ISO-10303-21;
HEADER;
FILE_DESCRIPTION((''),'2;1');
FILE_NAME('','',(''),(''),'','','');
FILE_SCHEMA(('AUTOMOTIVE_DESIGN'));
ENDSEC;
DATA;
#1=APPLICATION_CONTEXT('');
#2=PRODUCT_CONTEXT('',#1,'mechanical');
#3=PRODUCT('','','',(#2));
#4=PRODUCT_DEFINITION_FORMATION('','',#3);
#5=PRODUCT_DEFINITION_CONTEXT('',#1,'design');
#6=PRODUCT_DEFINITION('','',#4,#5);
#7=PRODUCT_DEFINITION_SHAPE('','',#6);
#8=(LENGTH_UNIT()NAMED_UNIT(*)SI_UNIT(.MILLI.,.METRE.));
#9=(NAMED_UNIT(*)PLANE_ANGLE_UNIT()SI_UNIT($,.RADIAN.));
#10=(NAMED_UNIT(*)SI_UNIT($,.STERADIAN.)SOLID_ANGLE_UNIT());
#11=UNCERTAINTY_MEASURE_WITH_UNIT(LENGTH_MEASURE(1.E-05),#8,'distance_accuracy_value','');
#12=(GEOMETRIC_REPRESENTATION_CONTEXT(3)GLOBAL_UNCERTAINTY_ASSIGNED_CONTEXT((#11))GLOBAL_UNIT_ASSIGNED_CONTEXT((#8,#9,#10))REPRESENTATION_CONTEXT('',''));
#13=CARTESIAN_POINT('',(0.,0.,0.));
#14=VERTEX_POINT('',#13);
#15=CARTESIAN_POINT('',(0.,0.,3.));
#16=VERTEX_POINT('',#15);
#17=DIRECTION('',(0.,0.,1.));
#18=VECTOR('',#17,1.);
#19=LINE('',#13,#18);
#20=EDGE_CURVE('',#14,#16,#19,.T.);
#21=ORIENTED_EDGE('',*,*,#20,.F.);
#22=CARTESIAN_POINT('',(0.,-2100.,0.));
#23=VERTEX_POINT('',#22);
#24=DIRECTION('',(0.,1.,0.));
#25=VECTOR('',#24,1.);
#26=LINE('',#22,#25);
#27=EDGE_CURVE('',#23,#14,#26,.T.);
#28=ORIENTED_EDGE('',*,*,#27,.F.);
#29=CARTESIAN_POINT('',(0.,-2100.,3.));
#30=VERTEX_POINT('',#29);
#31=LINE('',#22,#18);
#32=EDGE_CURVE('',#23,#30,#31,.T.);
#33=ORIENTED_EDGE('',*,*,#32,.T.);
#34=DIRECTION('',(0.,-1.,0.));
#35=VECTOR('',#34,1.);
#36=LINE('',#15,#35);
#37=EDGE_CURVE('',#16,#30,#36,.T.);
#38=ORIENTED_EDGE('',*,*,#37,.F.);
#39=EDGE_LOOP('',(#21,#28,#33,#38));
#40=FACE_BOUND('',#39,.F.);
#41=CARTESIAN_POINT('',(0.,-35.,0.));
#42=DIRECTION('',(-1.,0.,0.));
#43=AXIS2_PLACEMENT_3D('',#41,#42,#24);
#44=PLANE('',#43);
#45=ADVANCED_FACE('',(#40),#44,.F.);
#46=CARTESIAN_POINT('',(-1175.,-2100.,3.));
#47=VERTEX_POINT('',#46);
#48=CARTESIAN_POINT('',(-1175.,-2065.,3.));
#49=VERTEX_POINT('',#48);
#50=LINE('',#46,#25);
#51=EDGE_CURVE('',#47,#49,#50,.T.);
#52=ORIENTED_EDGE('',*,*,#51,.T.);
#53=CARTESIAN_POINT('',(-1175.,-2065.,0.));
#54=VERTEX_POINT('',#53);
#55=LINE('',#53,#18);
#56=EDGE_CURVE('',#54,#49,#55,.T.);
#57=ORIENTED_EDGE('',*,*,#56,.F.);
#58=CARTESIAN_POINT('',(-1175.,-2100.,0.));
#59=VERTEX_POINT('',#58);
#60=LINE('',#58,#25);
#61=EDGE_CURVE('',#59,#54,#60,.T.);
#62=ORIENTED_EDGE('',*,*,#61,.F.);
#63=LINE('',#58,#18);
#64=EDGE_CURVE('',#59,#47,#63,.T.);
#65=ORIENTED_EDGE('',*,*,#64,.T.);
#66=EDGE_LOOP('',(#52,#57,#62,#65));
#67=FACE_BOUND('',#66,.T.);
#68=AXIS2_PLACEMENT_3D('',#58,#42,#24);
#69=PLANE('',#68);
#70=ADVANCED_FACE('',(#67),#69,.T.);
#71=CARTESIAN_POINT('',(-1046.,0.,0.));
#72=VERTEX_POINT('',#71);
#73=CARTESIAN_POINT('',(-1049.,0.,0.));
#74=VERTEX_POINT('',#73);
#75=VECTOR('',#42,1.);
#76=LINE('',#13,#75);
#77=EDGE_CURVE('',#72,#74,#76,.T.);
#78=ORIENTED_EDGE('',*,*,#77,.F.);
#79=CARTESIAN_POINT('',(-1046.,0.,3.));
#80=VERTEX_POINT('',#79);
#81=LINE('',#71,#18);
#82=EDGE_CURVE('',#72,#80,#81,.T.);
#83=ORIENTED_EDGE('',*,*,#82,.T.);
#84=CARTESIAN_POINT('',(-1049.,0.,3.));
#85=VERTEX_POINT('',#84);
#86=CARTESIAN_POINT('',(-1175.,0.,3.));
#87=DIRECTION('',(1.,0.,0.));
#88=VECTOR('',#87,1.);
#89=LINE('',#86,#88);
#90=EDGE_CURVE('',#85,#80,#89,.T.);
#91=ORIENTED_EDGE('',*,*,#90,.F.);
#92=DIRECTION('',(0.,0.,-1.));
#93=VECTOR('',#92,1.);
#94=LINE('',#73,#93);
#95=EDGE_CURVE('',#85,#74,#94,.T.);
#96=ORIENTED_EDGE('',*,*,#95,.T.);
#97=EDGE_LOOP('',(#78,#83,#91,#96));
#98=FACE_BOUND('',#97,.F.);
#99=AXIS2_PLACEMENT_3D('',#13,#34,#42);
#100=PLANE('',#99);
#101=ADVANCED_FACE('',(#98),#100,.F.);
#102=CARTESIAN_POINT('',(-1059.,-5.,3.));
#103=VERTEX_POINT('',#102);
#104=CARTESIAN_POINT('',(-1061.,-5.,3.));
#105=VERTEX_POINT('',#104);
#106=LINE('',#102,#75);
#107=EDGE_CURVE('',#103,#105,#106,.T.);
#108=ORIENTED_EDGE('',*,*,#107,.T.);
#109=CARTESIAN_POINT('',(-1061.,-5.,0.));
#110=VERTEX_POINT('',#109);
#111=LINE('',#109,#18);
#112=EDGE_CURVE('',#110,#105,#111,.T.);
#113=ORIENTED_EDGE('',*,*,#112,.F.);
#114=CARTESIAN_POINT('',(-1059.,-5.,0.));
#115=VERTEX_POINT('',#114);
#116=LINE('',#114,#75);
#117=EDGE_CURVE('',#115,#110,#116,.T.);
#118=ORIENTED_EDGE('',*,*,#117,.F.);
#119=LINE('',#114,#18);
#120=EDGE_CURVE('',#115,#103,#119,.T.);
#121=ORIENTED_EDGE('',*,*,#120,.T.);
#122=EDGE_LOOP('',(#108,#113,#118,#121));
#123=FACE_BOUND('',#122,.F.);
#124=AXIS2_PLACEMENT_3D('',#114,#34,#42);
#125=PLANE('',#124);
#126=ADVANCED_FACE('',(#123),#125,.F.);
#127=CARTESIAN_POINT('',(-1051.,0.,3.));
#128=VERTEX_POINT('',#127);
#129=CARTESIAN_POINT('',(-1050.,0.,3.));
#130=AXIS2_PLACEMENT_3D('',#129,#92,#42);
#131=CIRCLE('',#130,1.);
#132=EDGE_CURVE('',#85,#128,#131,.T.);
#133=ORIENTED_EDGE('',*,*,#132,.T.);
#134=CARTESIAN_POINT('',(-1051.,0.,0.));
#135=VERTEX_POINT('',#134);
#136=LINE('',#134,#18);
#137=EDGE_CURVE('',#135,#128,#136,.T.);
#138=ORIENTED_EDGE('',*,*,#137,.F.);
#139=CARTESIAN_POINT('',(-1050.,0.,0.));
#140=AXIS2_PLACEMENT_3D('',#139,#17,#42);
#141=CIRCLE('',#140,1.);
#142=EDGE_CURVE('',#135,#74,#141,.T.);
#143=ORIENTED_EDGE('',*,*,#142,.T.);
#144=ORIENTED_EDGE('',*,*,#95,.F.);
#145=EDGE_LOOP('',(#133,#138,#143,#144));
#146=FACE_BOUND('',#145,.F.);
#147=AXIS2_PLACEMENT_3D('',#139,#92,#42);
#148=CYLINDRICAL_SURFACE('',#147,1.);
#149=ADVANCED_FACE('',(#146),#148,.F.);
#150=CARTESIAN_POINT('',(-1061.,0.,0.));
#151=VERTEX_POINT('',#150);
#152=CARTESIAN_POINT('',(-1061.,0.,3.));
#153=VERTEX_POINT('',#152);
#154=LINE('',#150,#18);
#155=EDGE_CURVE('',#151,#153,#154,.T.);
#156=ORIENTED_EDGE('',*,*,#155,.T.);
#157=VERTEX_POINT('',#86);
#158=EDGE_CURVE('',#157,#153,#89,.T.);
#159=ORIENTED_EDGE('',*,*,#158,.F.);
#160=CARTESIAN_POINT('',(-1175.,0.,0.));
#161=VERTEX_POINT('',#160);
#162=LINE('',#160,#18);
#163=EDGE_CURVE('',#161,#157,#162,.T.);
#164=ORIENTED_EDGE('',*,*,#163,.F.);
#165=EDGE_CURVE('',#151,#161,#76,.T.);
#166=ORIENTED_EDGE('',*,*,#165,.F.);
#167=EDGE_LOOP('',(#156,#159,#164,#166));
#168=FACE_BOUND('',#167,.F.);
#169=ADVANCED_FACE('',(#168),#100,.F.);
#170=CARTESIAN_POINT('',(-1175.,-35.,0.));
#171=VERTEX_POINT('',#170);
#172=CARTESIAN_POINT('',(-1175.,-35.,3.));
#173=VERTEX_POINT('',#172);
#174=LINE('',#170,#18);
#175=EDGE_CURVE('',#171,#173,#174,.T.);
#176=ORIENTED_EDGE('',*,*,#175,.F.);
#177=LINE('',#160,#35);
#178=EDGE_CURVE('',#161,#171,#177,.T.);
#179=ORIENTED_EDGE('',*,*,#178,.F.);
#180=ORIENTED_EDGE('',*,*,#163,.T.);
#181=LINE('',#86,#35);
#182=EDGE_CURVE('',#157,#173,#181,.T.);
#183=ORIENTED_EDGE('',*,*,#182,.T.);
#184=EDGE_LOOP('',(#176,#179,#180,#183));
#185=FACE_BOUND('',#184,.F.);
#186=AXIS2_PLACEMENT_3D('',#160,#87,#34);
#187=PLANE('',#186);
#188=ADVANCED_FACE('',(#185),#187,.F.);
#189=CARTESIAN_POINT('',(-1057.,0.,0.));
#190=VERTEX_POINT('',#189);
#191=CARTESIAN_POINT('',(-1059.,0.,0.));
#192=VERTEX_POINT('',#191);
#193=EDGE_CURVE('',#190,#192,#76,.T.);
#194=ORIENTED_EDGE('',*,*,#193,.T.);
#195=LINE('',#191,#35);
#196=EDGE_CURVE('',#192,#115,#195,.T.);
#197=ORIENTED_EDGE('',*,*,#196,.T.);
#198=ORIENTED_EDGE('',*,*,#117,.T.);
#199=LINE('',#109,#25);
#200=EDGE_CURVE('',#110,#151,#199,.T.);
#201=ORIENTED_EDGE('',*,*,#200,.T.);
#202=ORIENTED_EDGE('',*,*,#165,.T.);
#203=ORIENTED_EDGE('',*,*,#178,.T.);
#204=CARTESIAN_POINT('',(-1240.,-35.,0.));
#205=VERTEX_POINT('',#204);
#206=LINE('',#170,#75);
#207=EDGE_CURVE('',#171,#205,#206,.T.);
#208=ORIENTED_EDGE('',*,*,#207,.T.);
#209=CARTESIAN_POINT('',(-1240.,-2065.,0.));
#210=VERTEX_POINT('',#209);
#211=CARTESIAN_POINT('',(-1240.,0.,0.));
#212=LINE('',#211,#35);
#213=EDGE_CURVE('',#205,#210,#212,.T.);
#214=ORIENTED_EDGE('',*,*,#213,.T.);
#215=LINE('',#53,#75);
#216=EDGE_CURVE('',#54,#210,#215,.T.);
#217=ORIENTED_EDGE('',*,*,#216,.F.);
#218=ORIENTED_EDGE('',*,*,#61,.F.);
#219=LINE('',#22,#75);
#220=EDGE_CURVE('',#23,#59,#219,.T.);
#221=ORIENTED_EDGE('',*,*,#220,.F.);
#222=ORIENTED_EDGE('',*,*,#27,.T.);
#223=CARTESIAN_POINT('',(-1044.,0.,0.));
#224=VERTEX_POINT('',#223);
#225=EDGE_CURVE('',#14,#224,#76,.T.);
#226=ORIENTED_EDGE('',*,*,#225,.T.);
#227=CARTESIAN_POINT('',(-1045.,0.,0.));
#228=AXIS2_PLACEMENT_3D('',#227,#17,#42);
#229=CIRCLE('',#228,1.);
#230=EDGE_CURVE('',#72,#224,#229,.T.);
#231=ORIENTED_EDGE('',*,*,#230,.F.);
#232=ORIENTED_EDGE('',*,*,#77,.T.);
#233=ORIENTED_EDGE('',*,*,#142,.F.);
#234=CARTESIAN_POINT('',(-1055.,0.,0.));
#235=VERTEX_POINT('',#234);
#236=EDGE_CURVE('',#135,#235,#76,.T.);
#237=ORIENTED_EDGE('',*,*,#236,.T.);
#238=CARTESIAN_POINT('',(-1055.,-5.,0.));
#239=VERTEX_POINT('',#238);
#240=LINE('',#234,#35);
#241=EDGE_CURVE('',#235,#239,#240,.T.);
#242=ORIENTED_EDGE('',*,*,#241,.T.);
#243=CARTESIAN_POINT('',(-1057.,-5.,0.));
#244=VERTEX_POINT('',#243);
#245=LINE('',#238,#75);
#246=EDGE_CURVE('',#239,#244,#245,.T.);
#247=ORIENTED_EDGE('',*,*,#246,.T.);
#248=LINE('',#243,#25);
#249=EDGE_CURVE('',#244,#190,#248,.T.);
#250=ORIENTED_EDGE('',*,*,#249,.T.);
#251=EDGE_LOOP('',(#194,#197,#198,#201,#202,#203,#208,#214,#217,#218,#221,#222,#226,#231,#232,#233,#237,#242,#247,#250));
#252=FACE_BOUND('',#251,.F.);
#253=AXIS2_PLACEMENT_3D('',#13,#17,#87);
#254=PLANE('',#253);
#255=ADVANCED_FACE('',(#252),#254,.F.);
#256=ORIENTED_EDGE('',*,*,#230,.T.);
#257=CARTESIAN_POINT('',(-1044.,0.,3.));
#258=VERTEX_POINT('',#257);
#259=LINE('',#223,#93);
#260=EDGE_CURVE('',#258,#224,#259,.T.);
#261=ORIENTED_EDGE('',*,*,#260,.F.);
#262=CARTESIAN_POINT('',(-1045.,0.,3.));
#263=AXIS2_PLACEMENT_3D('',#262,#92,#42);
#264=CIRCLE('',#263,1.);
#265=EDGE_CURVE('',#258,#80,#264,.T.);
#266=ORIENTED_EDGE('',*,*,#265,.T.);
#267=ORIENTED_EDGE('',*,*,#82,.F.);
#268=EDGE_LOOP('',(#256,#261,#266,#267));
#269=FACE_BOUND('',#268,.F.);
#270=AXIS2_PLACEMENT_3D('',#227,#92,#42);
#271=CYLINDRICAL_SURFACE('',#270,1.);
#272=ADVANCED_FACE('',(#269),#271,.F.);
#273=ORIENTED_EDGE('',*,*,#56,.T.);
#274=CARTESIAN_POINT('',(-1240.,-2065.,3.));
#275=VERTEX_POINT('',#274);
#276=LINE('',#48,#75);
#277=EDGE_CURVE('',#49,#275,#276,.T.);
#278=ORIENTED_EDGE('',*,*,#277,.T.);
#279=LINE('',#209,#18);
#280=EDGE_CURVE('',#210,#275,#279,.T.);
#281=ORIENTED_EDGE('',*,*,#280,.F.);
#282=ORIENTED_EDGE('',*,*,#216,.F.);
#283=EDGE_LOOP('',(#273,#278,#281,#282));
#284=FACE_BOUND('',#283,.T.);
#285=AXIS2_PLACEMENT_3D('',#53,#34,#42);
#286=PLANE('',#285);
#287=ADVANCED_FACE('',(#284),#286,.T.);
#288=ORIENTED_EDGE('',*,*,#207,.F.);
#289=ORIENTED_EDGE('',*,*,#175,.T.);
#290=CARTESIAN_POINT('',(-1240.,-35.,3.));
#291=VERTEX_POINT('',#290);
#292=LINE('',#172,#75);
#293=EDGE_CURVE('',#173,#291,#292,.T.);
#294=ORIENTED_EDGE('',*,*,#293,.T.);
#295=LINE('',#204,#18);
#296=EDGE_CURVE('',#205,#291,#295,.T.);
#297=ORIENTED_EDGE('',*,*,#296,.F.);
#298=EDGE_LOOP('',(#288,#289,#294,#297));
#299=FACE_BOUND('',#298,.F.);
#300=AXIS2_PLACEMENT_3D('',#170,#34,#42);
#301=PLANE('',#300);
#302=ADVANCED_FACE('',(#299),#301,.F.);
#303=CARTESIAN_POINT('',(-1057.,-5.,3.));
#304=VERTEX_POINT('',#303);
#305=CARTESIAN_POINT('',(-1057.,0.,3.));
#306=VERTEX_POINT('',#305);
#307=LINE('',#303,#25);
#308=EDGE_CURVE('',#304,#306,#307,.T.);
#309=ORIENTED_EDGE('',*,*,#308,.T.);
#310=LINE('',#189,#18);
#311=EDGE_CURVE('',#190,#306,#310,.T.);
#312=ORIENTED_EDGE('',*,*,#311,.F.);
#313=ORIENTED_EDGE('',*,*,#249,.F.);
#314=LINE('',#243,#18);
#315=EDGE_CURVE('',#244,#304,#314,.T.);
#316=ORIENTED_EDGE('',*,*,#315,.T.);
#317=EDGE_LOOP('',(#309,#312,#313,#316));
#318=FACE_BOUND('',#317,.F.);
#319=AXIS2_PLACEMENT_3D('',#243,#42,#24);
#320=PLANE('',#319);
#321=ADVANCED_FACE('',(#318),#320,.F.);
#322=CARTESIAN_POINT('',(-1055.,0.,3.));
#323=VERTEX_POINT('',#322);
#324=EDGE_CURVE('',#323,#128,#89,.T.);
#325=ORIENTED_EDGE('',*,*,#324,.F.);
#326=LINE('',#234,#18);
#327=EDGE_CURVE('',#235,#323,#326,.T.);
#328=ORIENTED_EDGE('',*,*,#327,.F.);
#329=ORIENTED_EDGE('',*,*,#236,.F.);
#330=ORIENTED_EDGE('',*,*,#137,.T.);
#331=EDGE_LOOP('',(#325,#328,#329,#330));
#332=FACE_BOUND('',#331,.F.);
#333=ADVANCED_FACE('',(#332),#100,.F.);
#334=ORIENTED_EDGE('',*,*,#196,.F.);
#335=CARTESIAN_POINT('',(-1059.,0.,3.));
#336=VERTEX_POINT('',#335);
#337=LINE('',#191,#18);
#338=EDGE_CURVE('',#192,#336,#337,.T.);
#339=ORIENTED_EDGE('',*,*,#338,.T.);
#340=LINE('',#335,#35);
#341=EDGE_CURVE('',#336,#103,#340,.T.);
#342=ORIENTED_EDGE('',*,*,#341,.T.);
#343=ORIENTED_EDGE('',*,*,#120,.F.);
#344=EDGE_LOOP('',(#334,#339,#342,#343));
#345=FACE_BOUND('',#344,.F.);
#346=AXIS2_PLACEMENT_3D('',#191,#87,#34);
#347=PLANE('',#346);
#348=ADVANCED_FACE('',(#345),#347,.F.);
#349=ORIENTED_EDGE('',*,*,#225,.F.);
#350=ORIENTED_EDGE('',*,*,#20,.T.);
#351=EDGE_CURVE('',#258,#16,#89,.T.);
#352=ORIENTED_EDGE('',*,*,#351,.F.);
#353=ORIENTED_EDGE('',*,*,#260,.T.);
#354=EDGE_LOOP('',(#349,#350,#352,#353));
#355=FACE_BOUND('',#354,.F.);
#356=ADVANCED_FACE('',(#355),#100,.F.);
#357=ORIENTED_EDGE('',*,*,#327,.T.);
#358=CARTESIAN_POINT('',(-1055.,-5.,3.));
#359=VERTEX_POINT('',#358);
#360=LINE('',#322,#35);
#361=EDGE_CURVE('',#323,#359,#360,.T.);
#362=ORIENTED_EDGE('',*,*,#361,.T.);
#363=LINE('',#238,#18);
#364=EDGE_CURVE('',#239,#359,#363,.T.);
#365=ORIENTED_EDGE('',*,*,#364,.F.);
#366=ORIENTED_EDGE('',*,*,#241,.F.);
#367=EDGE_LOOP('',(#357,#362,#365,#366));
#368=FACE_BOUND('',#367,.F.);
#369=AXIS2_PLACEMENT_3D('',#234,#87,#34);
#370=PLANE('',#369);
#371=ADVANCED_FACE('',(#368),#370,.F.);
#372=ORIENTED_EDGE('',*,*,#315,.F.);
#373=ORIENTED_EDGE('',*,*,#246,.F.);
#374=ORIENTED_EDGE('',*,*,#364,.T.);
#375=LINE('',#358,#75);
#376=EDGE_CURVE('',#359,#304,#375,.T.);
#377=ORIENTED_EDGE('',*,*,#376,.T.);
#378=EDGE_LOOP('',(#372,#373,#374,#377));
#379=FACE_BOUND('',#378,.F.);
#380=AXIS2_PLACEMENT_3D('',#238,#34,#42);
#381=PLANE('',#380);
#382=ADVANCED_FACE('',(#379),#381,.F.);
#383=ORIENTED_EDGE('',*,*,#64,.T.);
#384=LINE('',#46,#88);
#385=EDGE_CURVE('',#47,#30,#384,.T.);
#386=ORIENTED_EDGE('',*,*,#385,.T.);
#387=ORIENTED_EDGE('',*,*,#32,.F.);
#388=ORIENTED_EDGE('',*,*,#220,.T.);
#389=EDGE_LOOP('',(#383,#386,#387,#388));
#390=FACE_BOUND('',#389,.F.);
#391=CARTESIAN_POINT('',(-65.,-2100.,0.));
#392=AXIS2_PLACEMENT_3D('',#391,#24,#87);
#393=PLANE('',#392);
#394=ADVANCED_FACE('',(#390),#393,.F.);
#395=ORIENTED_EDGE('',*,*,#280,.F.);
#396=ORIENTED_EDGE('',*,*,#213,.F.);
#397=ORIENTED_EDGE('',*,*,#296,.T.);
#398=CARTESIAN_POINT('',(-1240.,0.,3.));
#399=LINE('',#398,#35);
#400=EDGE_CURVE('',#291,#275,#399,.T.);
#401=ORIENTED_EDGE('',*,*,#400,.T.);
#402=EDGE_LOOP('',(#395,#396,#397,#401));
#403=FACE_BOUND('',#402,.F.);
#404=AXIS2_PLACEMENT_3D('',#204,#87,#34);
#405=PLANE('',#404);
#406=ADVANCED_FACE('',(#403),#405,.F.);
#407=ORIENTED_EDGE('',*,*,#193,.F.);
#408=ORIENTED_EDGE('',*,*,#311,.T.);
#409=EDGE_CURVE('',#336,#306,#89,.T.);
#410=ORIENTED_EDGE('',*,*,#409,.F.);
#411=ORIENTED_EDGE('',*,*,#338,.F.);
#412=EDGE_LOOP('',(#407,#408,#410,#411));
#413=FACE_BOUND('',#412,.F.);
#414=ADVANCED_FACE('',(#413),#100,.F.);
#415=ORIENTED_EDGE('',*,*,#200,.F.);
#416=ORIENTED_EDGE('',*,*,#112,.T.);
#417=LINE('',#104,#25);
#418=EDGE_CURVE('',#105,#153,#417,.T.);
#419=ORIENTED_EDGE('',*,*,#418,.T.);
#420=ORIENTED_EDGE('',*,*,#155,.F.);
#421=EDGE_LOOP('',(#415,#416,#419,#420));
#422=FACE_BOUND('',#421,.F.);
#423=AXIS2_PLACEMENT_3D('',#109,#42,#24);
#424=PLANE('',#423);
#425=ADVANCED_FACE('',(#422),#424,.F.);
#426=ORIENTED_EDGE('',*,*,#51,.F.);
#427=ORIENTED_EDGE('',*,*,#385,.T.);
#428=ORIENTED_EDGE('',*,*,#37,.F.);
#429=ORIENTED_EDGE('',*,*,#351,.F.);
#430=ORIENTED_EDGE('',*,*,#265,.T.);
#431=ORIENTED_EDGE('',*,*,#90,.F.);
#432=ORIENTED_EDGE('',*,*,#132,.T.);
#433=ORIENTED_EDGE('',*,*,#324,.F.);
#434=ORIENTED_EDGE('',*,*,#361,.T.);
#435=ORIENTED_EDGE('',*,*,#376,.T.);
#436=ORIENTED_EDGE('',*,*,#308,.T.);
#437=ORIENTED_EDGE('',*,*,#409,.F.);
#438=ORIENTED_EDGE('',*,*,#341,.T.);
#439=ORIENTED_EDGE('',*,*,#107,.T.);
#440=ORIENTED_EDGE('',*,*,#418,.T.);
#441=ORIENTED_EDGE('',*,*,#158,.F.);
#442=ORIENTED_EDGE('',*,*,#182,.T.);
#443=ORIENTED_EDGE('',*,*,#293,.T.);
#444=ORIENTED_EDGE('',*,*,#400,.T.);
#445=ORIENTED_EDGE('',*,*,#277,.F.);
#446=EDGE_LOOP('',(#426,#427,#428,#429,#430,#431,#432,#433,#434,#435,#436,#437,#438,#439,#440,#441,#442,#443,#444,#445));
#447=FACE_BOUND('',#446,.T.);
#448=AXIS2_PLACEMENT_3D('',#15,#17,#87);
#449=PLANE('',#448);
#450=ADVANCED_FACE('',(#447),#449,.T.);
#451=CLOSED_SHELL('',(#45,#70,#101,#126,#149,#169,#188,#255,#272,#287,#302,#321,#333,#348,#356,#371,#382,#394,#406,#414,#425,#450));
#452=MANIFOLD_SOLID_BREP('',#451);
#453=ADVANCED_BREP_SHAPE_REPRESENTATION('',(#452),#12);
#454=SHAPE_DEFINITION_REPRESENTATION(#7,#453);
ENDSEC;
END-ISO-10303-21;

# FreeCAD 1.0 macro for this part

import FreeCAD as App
import Part
import Sketcher

V = App.Vector
Q = App.Units.Quantity


def add_polygon(sketch, points):
    """Adds a closed chain of lines whose ends are joined by coincident constraints."""
    first, n = sketch.GeometryCount, len(points)
    for a, b in zip(points, points[1:] + points[:1]):
        sketch.addGeometry(Part.LineSegment(App.Vector(*a, 0), App.Vector(*b, 0)), False)
    for i in range(n):
        sketch.addConstraint(Sketcher.Constraint("Coincident", first + i, 2, first + (i + 1) % n, 1))

doc = App.newDocument("Part")
body = doc.addObject("PartDesign::Body", "Body")

# Sketch on XY plane
sketch1 = doc.addObject("Sketcher::SketchObject", "Sketch")
body.addObject(sketch1)
sketch1.AttachmentSupport = (doc.XY_Plane, [""])
sketch1.MapMode = "FlatFace"
add_polygon(sketch1, [(0, 0), (-1175, 0), (-1175, -35), (-1240, -35), (-1240, -2065), (-1175, -2065), (-1175, -2100), (0, -2100)])  # lines 0-7
sketch1.addConstraint(Sketcher.Constraint("Horizontal", 0))
sketch1.addConstraint(Sketcher.Constraint("Vertical", 1))
sketch1.addConstraint(Sketcher.Constraint("Horizontal", 2))
sketch1.addConstraint(Sketcher.Constraint("Vertical", 3))
sketch1.addConstraint(Sketcher.Constraint("Horizontal", 4))
sketch1.addConstraint(Sketcher.Constraint("Vertical", 5))
sketch1.addConstraint(Sketcher.Constraint("Horizontal", 6))
sketch1.addConstraint(Sketcher.Constraint("Vertical", 7))
sketch1.addConstraint(Sketcher.Constraint("Coincident", 7, 2, -1, 1))
sketch1.addConstraint(Sketcher.Constraint("Vertical", 1, 2, 4, 2))
sketch1.addConstraint(Sketcher.Constraint("Equal", 1, 5))
sketch1.addConstraint(Sketcher.Constraint("DistanceX", 2, 2, 2, 1, Q("65 mm")))
sketch1.addConstraint(Sketcher.Constraint("DistanceY", 1, 2, 1, 1, Q("35 mm")))
sketch1.addConstraint(Sketcher.Constraint("DistanceY", 7, 1, 7, 2, Q("2100 mm")))
sketch1.addConstraint(Sketcher.Constraint("DistanceX", 2, 2, -1, 1, Q("1240 mm")))
pad1 = doc.addObject("PartDesign::Pad", "Pad")
body.addObject(pad1)
pad1.Profile = sketch1
pad1.Length = 3

# Sketch on XY plane
sketch2 = doc.addObject("Sketcher::SketchObject", "Sketch001")
body.addObject(sketch2)
sketch2.AttachmentSupport = (doc.XY_Plane, [""])
sketch2.MapMode = "FlatFace"
sketch2.addGeometry(Part.Circle(V(-1045, 0, 0), V(0, 0, 1), 1), False)  # 0
sketch2.addGeometry(Part.Circle(V(-1050, 0, 0), V(0, 0, 1), 1), False)  # 1
add_polygon(sketch2, [(-1057, -5), (-1057, 0), (-1055, 0), (-1055, -5)])  # lines 2-5
add_polygon(sketch2, [(-1061, -5), (-1061, 0), (-1059, 0), (-1059, -5)])  # lines 6-9
sketch2.addConstraint(Sketcher.Constraint("Vertical", 2))
sketch2.addConstraint(Sketcher.Constraint("Horizontal", 3))
sketch2.addConstraint(Sketcher.Constraint("Vertical", 4))
sketch2.addConstraint(Sketcher.Constraint("Horizontal", 5))
sketch2.addConstraint(Sketcher.Constraint("Vertical", 6))
sketch2.addConstraint(Sketcher.Constraint("Horizontal", 7))
sketch2.addConstraint(Sketcher.Constraint("Vertical", 8))
sketch2.addConstraint(Sketcher.Constraint("Horizontal", 9))
sketch2.addConstraint(Sketcher.Constraint("Equal", 0, 1))
sketch2.addConstraint(Sketcher.Constraint("PointOnObject", 0, 3, -1))
sketch2.addConstraint(Sketcher.Constraint("PointOnObject", 1, 3, -1))
sketch2.addConstraint(Sketcher.Constraint("PointOnObject", 2, 2, -1))
sketch2.addConstraint(Sketcher.Constraint("PointOnObject", 6, 2, -1))
sketch2.addConstraint(Sketcher.Constraint("Horizontal", 5, 2, 8, 2))
sketch2.addConstraint(Sketcher.Constraint("Equal", 5, 7))
sketch2.addConstraint(Sketcher.Constraint("Diameter", 0, Q("2 mm")))
sketch2.addConstraint(Sketcher.Constraint("DistanceX", 3, 1, 3, 2, Q("2 mm")))
sketch2.addConstraint(Sketcher.Constraint("DistanceY", 2, 1, 2, 2, Q("5 mm")))
sketch2.addConstraint(Sketcher.Constraint("DistanceX", 1, 3, 0, 3, Q("5 mm")))
sketch2.addConstraint(Sketcher.Constraint("DistanceX", 3, 2, 1, 3, Q("5 mm")))
sketch2.addConstraint(Sketcher.Constraint("DistanceX", 6, 2, 2, 2, Q("4 mm")))
sketch2.addConstraint(Sketcher.Constraint("DistanceX", 0, 3, -1, 1, Q("1045 mm")))
pocket1 = doc.addObject("PartDesign::Pocket", "Pocket")
body.addObject(pocket1)
pocket1.Profile = sketch2
pocket1.Length = 3
pocket1.Reversed = True

doc.recompute()
